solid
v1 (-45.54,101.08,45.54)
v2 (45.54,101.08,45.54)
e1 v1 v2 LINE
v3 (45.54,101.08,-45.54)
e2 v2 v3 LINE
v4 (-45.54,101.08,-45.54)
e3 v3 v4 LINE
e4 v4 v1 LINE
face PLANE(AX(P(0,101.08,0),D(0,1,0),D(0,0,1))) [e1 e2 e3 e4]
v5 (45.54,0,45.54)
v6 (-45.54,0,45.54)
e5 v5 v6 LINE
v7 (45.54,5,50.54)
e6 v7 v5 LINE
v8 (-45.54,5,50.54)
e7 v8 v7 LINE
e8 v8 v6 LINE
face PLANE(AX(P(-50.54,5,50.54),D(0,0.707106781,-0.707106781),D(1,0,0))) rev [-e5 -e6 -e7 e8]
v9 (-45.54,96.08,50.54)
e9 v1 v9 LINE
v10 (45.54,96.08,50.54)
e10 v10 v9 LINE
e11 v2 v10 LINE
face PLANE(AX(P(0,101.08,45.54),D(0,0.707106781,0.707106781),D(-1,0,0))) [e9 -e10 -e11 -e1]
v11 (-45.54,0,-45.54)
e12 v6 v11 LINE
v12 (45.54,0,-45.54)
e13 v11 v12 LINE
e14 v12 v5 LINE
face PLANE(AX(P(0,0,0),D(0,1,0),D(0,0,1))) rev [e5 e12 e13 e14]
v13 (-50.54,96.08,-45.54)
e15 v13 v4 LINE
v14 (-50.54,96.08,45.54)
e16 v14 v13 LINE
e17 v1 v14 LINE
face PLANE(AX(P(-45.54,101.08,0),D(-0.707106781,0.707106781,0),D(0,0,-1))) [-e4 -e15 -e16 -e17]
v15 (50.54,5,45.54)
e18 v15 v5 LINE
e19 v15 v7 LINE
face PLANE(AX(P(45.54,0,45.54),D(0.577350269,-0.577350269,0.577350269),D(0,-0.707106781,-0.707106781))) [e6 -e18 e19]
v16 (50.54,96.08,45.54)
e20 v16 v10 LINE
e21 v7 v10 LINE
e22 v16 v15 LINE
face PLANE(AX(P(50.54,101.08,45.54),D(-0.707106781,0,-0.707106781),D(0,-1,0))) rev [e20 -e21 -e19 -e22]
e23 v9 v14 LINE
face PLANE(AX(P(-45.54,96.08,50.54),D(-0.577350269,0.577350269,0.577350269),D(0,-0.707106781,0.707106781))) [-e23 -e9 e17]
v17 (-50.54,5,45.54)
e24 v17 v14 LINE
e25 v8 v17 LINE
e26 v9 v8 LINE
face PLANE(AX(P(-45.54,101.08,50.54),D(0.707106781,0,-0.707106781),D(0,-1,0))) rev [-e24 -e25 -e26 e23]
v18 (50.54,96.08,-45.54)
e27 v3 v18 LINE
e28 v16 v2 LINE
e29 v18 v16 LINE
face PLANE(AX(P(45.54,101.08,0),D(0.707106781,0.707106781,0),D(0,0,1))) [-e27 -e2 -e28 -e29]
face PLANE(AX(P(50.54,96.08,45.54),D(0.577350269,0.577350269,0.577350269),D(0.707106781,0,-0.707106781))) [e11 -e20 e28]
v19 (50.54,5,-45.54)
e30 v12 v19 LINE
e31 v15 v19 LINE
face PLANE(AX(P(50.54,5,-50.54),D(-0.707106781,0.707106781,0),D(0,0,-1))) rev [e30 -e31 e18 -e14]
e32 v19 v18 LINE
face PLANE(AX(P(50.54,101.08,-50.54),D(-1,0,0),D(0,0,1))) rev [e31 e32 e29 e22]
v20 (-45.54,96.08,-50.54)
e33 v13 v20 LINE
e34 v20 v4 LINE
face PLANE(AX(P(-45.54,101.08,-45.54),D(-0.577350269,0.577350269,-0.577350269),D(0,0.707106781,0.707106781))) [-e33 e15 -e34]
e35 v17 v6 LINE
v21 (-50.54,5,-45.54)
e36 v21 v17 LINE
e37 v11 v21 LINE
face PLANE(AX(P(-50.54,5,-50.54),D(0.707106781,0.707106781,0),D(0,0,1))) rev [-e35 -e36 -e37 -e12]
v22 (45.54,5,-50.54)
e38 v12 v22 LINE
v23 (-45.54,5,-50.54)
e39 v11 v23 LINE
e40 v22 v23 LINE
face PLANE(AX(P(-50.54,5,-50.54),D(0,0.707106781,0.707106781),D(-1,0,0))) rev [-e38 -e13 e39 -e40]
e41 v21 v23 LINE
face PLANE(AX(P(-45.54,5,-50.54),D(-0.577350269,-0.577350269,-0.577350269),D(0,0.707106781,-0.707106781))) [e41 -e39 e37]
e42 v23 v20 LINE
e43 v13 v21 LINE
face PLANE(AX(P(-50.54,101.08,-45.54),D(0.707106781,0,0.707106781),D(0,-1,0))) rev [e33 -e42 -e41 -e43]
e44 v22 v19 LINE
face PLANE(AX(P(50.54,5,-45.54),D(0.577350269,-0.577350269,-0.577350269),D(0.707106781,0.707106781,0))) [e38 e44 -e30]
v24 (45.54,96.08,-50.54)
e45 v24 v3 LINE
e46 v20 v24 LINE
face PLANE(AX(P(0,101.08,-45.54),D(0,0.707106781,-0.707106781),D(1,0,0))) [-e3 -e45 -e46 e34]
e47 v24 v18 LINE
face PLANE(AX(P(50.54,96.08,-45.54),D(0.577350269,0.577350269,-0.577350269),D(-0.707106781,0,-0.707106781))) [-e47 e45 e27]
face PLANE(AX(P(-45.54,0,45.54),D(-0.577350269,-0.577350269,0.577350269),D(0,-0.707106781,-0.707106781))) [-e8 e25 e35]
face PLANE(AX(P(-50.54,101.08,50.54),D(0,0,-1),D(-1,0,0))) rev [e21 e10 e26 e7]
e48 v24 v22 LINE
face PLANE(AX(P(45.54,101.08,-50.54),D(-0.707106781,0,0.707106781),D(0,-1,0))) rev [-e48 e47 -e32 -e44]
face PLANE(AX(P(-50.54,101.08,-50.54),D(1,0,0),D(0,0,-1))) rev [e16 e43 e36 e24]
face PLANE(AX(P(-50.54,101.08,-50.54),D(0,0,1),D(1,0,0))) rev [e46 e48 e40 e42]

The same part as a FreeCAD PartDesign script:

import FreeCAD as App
import Part
import Sketcher

V = App.Vector
Q = App.Units.Quantity


def add_polygon(sketch, points):
    """Adds a closed chain of lines whose ends are joined by coincident constraints."""
    first, n = sketch.GeometryCount, len(points)
    for a, b in zip(points, points[1:] + points[:1]):
        sketch.addGeometry(Part.LineSegment(App.Vector(*a, 0), App.Vector(*b, 0)), False)
    for i in range(n):
        sketch.addConstraint(Sketcher.Constraint("Coincident", first + i, 2, first + (i + 1) % n, 1))

doc = App.newDocument("Part")
body = doc.addObject("PartDesign::Body", "Body")

sketch1 = body.newObject("Sketcher::SketchObject", "Sketch")
sketch1.AttachmentSupport = (doc.getObject("XZ_Plane"), [""])
sketch1.MapMode = "FlatFace"
add_polygon(sketch1, [(-50.54, -50.54), (-50.54, 50.54), (50.54, 50.54), (50.54, -50.54)])
sketch1.addConstraint([
    Sketcher.Constraint("Vertical", 0),
    Sketcher.Constraint("Horizontal", 1),
    Sketcher.Constraint("Vertical", 2),
    Sketcher.Constraint("Horizontal", 3),
    Sketcher.Constraint("Symmetric", 0, 2, 2, 2, -1, 1),
    Sketcher.Constraint("Equal", 3, 0),
    Sketcher.Constraint("DistanceX", 1, 1, 1, 2, Q("101.08 mm")),
])
pad1 = body.newObject("PartDesign::Pad", "Pad")
pad1.Profile = sketch1
pad1.Length = 101.08
pad1.Reversed = True
doc.recompute()

chamfer = body.newObject("PartDesign::Chamfer", "Chamfer")
chamfer.Base = (pad1, ["Edge1"])
chamfer.UseAllEdges = True
chamfer.Size = 5

doc.recompute()
